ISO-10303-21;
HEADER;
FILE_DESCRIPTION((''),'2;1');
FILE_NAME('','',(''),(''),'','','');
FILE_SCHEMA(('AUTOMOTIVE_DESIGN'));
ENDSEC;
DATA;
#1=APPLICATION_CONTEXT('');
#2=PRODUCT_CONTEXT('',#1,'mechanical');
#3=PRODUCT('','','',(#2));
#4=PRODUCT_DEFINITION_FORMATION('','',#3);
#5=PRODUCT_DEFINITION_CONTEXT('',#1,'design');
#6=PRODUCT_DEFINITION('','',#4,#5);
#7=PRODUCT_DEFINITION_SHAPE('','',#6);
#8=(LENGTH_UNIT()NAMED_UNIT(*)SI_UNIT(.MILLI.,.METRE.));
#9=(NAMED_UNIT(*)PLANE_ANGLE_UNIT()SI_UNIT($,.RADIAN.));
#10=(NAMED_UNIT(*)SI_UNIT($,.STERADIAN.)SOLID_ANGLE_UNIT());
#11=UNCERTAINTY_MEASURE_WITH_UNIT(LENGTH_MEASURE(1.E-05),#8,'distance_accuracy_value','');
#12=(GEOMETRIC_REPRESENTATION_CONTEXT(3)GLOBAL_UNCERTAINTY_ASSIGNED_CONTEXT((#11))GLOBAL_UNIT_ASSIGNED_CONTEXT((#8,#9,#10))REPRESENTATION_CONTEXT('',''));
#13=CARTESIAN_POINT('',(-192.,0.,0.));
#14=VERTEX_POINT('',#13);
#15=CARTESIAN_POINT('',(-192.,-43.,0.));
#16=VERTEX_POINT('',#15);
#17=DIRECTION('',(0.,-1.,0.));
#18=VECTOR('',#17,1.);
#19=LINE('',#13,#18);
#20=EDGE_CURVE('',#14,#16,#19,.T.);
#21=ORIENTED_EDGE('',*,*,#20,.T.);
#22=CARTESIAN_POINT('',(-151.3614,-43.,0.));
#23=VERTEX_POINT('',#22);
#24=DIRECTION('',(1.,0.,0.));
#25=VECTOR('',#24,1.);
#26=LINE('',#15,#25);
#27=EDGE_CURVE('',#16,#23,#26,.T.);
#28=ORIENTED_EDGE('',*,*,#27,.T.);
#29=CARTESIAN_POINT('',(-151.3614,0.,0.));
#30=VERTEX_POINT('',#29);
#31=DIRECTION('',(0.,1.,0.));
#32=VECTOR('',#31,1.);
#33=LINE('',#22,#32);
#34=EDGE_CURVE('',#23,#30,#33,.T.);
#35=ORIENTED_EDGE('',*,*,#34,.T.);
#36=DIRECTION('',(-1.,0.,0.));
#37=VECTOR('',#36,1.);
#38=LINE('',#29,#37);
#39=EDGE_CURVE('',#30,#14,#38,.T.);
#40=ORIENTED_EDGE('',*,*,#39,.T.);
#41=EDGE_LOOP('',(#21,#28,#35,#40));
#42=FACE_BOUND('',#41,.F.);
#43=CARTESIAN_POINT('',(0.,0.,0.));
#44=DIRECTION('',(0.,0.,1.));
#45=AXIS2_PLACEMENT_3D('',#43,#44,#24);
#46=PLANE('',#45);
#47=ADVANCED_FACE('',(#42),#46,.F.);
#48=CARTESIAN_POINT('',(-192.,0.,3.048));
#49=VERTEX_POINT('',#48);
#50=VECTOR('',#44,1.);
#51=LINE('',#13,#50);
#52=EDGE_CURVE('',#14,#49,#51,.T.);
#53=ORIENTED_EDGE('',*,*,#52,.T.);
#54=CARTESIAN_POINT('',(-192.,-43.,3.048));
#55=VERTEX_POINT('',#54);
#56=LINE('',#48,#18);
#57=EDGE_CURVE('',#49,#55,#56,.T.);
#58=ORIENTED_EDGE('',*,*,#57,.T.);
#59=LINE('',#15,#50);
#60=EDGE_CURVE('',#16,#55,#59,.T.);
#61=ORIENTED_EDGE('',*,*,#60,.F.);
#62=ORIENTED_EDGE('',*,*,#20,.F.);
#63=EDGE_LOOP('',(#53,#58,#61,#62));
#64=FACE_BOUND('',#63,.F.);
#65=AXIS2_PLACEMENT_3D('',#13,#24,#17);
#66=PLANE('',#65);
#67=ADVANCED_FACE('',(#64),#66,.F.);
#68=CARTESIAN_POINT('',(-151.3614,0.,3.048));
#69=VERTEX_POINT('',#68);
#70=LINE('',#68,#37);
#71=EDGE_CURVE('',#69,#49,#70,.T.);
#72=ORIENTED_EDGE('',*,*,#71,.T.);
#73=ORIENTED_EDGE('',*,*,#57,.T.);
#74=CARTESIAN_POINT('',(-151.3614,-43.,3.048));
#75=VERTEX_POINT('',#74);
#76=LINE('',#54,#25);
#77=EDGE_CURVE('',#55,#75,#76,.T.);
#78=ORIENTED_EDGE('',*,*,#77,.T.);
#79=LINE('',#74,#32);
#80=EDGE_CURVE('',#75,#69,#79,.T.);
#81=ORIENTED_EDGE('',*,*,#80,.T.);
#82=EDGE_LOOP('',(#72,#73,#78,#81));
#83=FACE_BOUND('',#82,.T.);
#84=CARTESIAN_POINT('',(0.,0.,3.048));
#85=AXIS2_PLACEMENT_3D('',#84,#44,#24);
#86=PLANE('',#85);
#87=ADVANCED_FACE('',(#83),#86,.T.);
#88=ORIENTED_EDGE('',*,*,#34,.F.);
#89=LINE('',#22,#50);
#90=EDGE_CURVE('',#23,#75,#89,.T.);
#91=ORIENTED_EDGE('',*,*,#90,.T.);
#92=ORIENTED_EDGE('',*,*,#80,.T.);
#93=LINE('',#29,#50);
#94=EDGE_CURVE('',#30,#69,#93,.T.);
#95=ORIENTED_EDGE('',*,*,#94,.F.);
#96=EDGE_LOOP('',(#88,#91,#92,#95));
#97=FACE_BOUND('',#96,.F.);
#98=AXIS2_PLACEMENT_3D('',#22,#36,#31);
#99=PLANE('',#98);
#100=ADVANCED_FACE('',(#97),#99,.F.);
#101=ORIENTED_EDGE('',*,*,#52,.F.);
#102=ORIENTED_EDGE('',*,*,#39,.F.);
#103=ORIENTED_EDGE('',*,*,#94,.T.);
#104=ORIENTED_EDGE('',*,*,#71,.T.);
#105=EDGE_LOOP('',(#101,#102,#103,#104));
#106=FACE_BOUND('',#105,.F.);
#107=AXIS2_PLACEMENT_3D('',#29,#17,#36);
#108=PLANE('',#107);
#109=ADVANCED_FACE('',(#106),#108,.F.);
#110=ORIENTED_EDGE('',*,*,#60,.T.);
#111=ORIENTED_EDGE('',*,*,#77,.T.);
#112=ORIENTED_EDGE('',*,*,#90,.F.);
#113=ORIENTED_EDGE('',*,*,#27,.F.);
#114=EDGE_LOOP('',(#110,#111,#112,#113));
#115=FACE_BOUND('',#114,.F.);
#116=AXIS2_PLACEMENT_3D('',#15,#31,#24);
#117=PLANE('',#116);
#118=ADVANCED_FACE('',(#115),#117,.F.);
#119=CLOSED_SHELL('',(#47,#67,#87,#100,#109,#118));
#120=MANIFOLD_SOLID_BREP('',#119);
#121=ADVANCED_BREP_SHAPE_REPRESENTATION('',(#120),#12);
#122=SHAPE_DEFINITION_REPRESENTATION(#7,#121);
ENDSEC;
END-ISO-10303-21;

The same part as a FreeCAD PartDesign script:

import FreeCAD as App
import Part
import Sketcher

doc = App.newDocument("Part")
body = doc.addObject("PartDesign::Body", "Body")

sketch1 = body.newObject("Sketcher::SketchObject", "Sketch")
sketch1.AttachmentSupport = (doc.getObject("XY_Plane"), [""])
sketch1.MapMode = "FlatFace"
sketch1.addGeometry([
    Part.LineSegment(App.Vector(-192, 0, 0), App.Vector(-192, -43, 0)),
    Part.LineSegment(App.Vector(-192, -43, 0), App.Vector(-151, -43, 0)),
    Part.LineSegment(App.Vector(-151, -43, 0), App.Vector(-151, 0, 0)),
    Part.LineSegment(App.Vector(-151, 0, 0), App.Vector(-192, 0, 0)),
], False)
sketch1.addConstraint([
    Sketcher.Constraint("Coincident", 0, 2, 1, 1),
    Sketcher.Constraint("Coincident", 1, 2, 2, 1),
    Sketcher.Constraint("Coincident", 2, 2, 3, 1),
    Sketcher.Constraint("Coincident", 3, 2, 0, 1),
    Sketcher.Constraint("Vertical", 0),
    Sketcher.Constraint("Horizontal", 1),
    Sketcher.Constraint("Vertical", 2),
    Sketcher.Constraint("Horizontal", 3),
    Sketcher.Constraint("PointOnObject", 2, 2, -1),
    Sketcher.Constraint("DistanceY", 0, 2, 0, 1, 43.0),
    Sketcher.Constraint("DistanceX", 0, 2, -1, 1, 192.0),
    Sketcher.Constraint("DistanceX", 1, 1, 1, 2, 40.6386),
])
pad1 = body.newObject("PartDesign::Pad", "Pad")
pad1.Profile = sketch1
pad1.Length = 3.048

doc.recompute()
